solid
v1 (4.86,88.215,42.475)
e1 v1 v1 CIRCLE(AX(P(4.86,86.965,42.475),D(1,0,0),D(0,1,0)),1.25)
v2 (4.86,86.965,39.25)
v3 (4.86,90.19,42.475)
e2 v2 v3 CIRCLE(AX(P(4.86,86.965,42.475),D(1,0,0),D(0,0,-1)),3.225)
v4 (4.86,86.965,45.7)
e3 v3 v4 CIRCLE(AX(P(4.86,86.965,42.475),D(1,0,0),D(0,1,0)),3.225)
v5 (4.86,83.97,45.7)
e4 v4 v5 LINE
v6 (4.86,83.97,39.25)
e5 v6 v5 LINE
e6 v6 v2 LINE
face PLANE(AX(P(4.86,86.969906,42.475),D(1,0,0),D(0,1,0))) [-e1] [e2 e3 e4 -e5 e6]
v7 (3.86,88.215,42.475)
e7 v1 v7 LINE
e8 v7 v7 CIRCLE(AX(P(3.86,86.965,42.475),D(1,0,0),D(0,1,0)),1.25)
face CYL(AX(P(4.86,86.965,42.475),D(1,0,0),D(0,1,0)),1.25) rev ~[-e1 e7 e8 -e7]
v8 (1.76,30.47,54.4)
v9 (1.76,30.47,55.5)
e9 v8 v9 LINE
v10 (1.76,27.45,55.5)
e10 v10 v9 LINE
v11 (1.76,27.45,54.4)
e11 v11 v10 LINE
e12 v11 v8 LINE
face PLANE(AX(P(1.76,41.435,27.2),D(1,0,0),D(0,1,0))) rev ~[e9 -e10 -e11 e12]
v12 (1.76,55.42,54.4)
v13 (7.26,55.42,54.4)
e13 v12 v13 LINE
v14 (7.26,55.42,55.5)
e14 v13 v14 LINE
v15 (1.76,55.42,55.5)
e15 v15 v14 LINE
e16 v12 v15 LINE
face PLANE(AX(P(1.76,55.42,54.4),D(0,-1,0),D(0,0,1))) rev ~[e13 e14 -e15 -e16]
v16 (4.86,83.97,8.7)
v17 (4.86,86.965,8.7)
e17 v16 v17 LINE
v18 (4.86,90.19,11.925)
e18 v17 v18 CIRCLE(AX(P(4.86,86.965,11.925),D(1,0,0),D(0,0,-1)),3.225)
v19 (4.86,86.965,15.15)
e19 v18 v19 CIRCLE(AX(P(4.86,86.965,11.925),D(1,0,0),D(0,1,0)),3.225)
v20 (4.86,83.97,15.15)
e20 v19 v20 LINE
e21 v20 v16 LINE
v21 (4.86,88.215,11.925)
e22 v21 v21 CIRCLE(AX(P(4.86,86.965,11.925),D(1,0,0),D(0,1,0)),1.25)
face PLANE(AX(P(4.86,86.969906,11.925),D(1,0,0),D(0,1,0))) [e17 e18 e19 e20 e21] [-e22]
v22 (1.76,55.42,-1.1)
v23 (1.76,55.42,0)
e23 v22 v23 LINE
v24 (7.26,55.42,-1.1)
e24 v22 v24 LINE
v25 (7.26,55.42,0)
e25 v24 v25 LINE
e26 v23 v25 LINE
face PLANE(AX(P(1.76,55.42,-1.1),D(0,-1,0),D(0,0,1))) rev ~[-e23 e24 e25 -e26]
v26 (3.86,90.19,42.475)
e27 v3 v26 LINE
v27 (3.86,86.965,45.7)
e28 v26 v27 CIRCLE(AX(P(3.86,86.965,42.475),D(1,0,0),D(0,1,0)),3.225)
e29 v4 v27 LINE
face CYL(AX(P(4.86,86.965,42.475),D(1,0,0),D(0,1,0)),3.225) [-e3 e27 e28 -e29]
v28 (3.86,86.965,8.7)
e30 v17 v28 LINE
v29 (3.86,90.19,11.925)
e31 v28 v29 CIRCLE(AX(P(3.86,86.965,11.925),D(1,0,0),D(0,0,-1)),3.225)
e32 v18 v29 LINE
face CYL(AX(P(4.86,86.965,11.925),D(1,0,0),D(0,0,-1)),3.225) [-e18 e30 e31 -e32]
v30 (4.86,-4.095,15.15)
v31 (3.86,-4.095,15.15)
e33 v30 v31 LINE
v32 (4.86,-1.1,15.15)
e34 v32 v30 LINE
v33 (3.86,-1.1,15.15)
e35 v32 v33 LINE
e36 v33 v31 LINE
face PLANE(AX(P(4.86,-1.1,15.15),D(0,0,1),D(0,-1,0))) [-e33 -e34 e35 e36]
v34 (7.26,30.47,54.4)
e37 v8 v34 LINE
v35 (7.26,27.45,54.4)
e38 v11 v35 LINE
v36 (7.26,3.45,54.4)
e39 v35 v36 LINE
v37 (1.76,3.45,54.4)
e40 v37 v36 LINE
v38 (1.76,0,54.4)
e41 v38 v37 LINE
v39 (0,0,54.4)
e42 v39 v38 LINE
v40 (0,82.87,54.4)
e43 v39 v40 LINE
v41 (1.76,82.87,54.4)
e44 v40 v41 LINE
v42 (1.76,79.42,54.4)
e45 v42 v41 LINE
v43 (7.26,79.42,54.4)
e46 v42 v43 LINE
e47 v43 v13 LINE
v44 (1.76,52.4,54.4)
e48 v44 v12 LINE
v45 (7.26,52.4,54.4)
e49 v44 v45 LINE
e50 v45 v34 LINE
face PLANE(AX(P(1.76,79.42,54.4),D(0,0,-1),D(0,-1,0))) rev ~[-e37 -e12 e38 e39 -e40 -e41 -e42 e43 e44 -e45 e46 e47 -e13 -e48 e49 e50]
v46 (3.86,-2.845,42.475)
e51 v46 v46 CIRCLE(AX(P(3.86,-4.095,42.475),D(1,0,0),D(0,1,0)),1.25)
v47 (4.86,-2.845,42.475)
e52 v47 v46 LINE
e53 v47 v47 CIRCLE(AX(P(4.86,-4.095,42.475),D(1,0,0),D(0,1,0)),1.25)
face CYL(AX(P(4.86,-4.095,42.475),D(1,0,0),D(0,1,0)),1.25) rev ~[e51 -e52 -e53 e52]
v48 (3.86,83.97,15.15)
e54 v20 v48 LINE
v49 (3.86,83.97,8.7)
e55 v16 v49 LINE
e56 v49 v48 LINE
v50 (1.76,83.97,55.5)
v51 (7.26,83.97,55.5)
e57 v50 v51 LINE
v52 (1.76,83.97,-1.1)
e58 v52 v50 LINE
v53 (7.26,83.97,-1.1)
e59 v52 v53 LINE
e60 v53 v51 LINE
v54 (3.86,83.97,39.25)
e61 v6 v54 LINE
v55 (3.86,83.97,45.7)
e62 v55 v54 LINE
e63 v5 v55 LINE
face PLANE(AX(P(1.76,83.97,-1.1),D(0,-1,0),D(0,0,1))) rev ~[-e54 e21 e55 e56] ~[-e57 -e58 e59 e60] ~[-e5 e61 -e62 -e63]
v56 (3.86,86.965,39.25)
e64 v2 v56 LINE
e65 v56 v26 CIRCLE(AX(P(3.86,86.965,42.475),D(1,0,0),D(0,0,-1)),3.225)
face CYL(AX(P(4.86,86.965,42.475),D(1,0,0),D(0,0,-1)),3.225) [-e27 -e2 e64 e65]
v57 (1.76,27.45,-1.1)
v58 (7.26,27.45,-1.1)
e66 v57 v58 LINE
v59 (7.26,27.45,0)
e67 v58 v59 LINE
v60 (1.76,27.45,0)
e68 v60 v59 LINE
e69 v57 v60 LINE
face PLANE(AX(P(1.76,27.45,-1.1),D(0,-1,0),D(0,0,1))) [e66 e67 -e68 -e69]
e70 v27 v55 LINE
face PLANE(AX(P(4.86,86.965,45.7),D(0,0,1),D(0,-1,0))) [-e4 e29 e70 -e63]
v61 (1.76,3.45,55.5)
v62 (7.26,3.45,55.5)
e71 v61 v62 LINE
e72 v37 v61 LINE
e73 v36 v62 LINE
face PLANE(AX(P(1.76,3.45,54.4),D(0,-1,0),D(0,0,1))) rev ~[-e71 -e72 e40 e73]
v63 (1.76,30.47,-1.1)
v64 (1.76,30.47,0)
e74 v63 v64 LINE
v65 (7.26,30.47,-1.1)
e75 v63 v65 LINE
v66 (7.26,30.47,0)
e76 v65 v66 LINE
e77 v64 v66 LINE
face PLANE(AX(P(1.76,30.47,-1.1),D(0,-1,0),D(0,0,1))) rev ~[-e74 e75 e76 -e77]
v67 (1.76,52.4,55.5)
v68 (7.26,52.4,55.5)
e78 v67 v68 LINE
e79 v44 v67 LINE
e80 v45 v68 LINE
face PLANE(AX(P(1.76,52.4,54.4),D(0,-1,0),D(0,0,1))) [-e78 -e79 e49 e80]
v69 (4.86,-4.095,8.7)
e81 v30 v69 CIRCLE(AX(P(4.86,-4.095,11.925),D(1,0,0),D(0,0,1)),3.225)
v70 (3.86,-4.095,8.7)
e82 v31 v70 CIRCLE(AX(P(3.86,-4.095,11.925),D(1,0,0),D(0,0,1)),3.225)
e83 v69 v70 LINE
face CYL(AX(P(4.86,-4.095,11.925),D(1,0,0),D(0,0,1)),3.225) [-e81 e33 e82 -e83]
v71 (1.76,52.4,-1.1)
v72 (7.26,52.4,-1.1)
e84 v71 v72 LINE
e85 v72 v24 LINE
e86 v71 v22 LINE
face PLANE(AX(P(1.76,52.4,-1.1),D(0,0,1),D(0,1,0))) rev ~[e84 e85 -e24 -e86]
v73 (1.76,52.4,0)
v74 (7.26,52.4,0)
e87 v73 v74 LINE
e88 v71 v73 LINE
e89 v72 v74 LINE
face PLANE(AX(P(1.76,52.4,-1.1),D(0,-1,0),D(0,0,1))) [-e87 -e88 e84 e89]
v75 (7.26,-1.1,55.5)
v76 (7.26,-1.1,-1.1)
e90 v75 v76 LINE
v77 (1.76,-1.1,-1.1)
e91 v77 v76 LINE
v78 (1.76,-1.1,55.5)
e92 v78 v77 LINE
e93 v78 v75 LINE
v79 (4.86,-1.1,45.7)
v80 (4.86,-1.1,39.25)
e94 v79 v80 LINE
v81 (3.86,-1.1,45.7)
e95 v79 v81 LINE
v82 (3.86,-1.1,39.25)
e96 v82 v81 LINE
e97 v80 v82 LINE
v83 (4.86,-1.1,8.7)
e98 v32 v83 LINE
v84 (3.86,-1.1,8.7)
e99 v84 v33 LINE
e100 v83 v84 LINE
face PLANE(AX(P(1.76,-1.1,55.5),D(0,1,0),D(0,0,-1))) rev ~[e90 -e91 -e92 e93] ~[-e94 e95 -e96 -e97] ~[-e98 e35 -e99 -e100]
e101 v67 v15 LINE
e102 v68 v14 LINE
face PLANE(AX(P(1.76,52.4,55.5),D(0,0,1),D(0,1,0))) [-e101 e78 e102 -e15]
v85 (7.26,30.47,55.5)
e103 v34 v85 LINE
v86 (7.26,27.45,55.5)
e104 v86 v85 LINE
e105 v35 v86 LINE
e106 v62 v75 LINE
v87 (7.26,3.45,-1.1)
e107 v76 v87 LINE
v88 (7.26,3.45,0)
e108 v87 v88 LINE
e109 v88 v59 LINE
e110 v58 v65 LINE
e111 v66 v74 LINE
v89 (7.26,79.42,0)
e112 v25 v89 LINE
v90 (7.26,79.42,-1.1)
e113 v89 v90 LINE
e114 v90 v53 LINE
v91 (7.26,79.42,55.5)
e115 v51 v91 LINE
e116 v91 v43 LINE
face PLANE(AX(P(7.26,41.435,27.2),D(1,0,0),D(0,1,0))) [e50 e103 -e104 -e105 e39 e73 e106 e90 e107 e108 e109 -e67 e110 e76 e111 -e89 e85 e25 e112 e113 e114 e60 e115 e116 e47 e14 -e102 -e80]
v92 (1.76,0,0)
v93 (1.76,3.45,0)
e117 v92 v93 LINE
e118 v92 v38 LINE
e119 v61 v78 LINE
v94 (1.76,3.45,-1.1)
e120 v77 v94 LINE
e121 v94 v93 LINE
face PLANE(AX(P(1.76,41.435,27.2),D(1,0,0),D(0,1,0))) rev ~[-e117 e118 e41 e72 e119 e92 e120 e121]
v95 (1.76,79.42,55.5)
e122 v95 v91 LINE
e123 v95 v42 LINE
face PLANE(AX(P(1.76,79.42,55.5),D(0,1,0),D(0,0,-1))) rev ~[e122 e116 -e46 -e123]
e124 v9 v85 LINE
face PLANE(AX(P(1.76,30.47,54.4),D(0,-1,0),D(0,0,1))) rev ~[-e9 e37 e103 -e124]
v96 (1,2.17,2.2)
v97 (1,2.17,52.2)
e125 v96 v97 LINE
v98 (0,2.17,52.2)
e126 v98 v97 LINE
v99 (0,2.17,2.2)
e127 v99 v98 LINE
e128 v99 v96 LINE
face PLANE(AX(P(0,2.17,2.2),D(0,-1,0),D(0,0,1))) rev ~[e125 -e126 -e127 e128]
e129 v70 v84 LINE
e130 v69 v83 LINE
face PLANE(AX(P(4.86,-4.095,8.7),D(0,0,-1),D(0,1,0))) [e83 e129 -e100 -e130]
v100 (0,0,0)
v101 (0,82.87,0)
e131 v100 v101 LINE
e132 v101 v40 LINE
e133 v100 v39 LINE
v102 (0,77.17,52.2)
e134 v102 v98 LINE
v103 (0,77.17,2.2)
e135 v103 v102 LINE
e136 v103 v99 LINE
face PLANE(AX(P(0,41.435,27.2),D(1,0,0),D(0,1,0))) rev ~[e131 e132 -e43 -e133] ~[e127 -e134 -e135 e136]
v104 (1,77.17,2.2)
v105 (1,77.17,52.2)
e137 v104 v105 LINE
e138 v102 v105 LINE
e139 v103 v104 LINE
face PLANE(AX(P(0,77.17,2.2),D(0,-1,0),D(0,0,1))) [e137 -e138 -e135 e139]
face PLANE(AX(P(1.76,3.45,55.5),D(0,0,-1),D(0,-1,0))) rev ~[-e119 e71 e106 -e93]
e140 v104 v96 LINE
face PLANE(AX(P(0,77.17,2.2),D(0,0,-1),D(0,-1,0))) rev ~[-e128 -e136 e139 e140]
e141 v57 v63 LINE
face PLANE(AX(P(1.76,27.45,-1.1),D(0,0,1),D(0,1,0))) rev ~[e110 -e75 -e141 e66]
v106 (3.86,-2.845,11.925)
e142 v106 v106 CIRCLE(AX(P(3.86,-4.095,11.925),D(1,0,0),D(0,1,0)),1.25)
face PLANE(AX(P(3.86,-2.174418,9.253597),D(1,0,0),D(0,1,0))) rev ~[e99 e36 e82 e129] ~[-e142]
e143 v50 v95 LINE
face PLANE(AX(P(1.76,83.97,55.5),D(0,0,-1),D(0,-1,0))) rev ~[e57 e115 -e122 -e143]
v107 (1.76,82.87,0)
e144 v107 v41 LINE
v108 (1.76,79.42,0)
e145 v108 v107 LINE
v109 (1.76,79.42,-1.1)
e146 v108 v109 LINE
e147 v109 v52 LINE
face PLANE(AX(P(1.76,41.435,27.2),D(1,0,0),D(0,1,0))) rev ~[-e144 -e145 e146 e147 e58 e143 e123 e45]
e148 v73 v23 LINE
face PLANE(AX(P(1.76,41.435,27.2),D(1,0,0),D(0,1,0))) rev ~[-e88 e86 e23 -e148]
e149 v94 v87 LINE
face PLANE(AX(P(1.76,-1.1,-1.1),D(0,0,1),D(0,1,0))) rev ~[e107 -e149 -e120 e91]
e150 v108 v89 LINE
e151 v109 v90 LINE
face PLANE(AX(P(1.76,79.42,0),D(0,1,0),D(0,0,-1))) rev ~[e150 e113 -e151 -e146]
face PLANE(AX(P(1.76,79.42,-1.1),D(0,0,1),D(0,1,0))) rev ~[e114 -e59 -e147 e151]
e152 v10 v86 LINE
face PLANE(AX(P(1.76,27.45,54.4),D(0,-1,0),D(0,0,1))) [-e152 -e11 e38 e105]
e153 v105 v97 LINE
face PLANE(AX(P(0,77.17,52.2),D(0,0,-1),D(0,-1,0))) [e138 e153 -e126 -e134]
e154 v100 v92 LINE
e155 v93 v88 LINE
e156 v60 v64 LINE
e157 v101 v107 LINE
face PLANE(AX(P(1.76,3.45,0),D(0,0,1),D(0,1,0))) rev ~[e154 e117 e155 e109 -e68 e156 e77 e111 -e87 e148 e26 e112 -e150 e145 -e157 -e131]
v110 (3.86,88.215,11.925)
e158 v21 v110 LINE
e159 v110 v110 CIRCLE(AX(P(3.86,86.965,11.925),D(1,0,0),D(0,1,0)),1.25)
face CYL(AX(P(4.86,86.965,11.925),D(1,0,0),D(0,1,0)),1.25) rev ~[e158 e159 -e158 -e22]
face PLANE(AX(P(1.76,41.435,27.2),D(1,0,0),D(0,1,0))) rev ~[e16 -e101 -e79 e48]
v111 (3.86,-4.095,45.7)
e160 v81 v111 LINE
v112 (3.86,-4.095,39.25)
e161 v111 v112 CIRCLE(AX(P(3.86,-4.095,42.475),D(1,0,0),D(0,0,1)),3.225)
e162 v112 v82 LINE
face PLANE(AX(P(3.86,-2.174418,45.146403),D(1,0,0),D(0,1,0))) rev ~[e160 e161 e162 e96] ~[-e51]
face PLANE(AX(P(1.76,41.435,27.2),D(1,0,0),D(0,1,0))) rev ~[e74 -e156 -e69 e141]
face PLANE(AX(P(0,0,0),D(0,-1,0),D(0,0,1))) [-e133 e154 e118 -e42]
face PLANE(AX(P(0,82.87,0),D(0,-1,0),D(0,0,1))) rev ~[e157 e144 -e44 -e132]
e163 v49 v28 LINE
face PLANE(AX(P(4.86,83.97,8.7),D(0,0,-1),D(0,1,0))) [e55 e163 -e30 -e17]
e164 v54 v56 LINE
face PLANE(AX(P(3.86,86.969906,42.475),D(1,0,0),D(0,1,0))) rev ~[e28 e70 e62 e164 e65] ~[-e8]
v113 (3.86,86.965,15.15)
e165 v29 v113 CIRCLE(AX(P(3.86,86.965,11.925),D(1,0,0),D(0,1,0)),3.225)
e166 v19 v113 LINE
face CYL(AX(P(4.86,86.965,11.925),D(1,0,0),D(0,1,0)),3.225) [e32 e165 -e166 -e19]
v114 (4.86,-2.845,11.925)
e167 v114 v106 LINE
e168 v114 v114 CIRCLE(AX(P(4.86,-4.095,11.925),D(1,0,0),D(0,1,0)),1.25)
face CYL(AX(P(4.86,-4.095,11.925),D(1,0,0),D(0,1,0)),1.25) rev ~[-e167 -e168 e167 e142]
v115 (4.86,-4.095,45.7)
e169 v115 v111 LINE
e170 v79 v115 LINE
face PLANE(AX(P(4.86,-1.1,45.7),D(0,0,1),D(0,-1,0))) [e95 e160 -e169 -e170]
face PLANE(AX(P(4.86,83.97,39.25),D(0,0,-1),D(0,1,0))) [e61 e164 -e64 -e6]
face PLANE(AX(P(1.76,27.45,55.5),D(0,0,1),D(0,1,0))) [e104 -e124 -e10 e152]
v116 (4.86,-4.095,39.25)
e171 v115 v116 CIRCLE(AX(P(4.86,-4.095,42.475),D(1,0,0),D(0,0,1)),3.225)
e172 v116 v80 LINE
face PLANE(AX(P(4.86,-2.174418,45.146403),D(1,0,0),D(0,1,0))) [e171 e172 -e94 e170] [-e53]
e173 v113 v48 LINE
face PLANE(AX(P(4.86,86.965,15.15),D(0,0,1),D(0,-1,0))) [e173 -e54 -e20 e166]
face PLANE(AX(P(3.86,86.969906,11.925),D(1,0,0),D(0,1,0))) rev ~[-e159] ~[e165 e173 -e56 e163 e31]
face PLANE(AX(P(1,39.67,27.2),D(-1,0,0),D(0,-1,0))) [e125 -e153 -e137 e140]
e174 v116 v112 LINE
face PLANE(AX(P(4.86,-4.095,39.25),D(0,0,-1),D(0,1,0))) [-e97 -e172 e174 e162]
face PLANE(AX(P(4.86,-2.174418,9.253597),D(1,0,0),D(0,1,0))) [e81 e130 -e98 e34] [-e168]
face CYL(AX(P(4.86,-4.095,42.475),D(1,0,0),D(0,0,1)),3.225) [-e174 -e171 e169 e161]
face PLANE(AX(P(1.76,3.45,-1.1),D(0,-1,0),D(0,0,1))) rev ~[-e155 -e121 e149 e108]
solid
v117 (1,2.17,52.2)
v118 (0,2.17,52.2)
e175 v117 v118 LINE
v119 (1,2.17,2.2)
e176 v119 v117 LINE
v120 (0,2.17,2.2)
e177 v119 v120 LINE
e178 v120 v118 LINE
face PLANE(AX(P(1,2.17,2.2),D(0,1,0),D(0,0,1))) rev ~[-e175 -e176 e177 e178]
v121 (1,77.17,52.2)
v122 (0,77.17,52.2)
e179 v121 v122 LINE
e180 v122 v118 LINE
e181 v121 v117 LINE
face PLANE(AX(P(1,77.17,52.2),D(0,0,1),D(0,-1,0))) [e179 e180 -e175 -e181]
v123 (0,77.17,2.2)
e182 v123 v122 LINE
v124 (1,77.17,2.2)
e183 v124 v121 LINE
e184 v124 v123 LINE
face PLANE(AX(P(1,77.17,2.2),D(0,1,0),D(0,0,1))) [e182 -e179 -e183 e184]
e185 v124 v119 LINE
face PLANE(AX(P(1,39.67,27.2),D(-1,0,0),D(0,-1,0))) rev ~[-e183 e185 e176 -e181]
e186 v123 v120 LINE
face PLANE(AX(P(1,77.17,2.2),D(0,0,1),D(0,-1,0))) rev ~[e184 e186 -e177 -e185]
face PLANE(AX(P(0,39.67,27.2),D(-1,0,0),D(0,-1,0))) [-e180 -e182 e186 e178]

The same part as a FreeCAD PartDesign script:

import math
import FreeCAD as App
import Part
import Sketcher

V = App.Vector

doc = App.newDocument("Part")
body = doc.addObject("PartDesign::Body", "Body")

# Sketch on YZ plane
sketch1 = body.newObject("Sketcher::SketchObject", "Sketch")
sketch1.AttachmentSupport = (doc.getObject("YZ_Plane"), [""])
sketch1.MapMode = "FlatFace"
sketch1.addGeometry(Part.LineSegment(V(0, 54.4, 0), V(0, 0, 0)), False)
sketch1.addGeometry(Part.LineSegment(V(0, 0, 0), V(82.87, 0, 0)), False)
sketch1.addGeometry(Part.LineSegment(V(82.87, 0, 0), V(82.87, 54.4, 0)), False)
sketch1.addGeometry(Part.LineSegment(V(82.87, 54.4, 0), V(0, 54.4, 0)), False)
sketch1.addConstraint(Sketcher.Constraint("Coincident", 0, 2, 1, 1))
sketch1.addConstraint(Sketcher.Constraint("Coincident", 1, 2, 2, 1))
sketch1.addConstraint(Sketcher.Constraint("Coincident", 2, 2, 3, 1))
sketch1.addConstraint(Sketcher.Constraint("Coincident", 3, 2, 0, 1))
sketch1.addConstraint(Sketcher.Constraint("Vertical", 0))
sketch1.addConstraint(Sketcher.Constraint("Horizontal", 1))
sketch1.addConstraint(Sketcher.Constraint("Vertical", 2))
sketch1.addConstraint(Sketcher.Constraint("Horizontal", 3))
sketch1.addConstraint(Sketcher.Constraint("Coincident", 0, 2, -1, 1))
sketch1.addConstraint(Sketcher.Constraint("DistanceY", 0, 2, 0, 1, 54.4))
sketch1.addConstraint(Sketcher.Constraint("DistanceX", 1, 1, 1, 2, 82.87))
pad1 = body.newObject("PartDesign::Pad", "Pad")
pad1.Profile = sketch1
pad1.Length = 1.76

# Sketch on YZ plane
sketch2 = body.newObject("Sketcher::SketchObject", "Sketch001")
sketch2.AttachmentSupport = (doc.getObject("YZ_Plane"), [""])
sketch2.MapMode = "FlatFace"
sketch2.AttachmentOffset = App.Placement(V(0, 0, 1.76), App.Rotation())
sketch2.addGeometry(Part.LineSegment(V(3.45, 0, 0), V(27.45, 0, 0)), False)
sketch2.addGeometry(Part.LineSegment(V(27.45, 0, 0), V(27.45, -1.1, 0)), False)
sketch2.addGeometry(Part.LineSegment(V(27.45, -1.1, 0), V(30.47, -1.1, 0)), False)
sketch2.addGeometry(Part.LineSegment(V(30.47, -1.1, 0), V(30.47, 0, 0)), False)
sketch2.addGeometry(Part.LineSegment(V(30.47, 0, 0), V(52.4, 0, 0)), False)
sketch2.addGeometry(Part.LineSegment(V(52.4, 0, 0), V(52.4, -1.1, 0)), False)
sketch2.addGeometry(Part.LineSegment(V(52.4, -1.1, 0), V(55.42, -1.1, 0)), False)
sketch2.addGeometry(Part.LineSegment(V(55.42, -1.1, 0), V(55.42, 0, 0)), False)
sketch2.addGeometry(Part.LineSegment(V(55.42, 0, 0), V(79.42, 0, 0)), False)
sketch2.addGeometry(Part.LineSegment(V(79.42, 0, 0), V(79.42, -1.1, 0)), False)
sketch2.addGeometry(Part.LineSegment(V(79.42, -1.1, 0), V(83.97, -1.1, 0)), False)
sketch2.addGeometry(Part.LineSegment(V(83.97, -1.1, 0), V(83.97, 55.5, 0)), False)
sketch2.addGeometry(Part.LineSegment(V(83.97, 55.5, 0), V(79.42, 55.5, 0)), False)
sketch2.addGeometry(Part.LineSegment(V(79.42, 55.5, 0), V(79.42, 54.4, 0)), False)
sketch2.addGeometry(Part.LineSegment(V(79.42, 54.4, 0), V(55.42, 54.4, 0)), False)
sketch2.addGeometry(Part.LineSegment(V(55.42, 54.4, 0), V(55.42, 55.5, 0)), False)
sketch2.addGeometry(Part.LineSegment(V(55.42, 55.5, 0), V(52.4, 55.5, 0)), False)
sketch2.addGeometry(Part.LineSegment(V(52.4, 55.5, 0), V(52.4, 54.4, 0)), False)
sketch2.addGeometry(Part.LineSegment(V(52.4, 54.4, 0), V(30.47, 54.4, 0)), False)
sketch2.addGeometry(Part.LineSegment(V(30.47, 54.4, 0), V(30.47, 55.5, 0)), False)
sketch2.addGeometry(Part.LineSegment(V(30.47, 55.5, 0), V(27.45, 55.5, 0)), False)
sketch2.addGeometry(Part.LineSegment(V(27.45, 55.5, 0), V(27.45, 54.4, 0)), False)
sketch2.addGeometry(Part.LineSegment(V(27.45, 54.4, 0), V(3.45, 54.4, 0)), False)
sketch2.addGeometry(Part.LineSegment(V(3.45, 54.4, 0), V(3.45, 55.5, 0)), False)
sketch2.addGeometry(Part.LineSegment(V(3.45, 55.5, 0), V(-1.1, 55.5, 0)), False)
sketch2.addGeometry(Part.LineSegment(V(-1.1, 55.5, 0), V(-1.1, -1.1, 0)), False)
sketch2.addGeometry(Part.LineSegment(V(-1.1, -1.1, 0), V(3.45, -1.1, 0)), False)
sketch2.addGeometry(Part.LineSegment(V(3.45, -1.1, 0), V(3.45, 0, 0)), False)
sketch2.addConstraint(Sketcher.Constraint("Coincident", 0, 2, 1, 1))
sketch2.addConstraint(Sketcher.Constraint("Coincident", 1, 2, 2, 1))
sketch2.addConstraint(Sketcher.Constraint("Coincident", 2, 2, 3, 1))
sketch2.addConstraint(Sketcher.Constraint("Coincident", 3, 2, 4, 1))
sketch2.addConstraint(Sketcher.Constraint("Coincident", 4, 2, 5, 1))
sketch2.addConstraint(Sketcher.Constraint("Coincident", 5, 2, 6, 1))
sketch2.addConstraint(Sketcher.Constraint("Coincident", 6, 2, 7, 1))
sketch2.addConstraint(Sketcher.Constraint("Coincident", 7, 2, 8, 1))
sketch2.addConstraint(Sketcher.Constraint("Coincident", 8, 2, 9, 1))
sketch2.addConstraint(Sketcher.Constraint("Coincident", 9, 2, 10, 1))
sketch2.addConstraint(Sketcher.Constraint("Coincident", 10, 2, 11, 1))
sketch2.addConstraint(Sketcher.Constraint("Coincident", 11, 2, 12, 1))
sketch2.addConstraint(Sketcher.Constraint("Coincident", 12, 2, 13, 1))
sketch2.addConstraint(Sketcher.Constraint("Coincident", 13, 2, 14, 1))
sketch2.addConstraint(Sketcher.Constraint("Coincident", 14, 2, 15, 1))
sketch2.addConstraint(Sketcher.Constraint("Coincident", 15, 2, 16, 1))
sketch2.addConstraint(Sketcher.Constraint("Coincident", 16, 2, 17, 1))
sketch2.addConstraint(Sketcher.Constraint("Coincident", 17, 2, 18, 1))
sketch2.addConstraint(Sketcher.Constraint("Coincident", 18, 2, 19, 1))
sketch2.addConstraint(Sketcher.Constraint("Coincident", 19, 2, 20, 1))
sketch2.addConstraint(Sketcher.Constraint("Coincident", 20, 2, 21, 1))
sketch2.addConstraint(Sketcher.Constraint("Coincident", 21, 2, 22, 1))
sketch2.addConstraint(Sketcher.Constraint("Coincident", 22, 2, 23, 1))
sketch2.addConstraint(Sketcher.Constraint("Coincident", 23, 2, 24, 1))
sketch2.addConstraint(Sketcher.Constraint("Coincident", 24, 2, 25, 1))
sketch2.addConstraint(Sketcher.Constraint("Coincident", 25, 2, 26, 1))
sketch2.addConstraint(Sketcher.Constraint("Coincident", 26, 2, 27, 1))
sketch2.addConstraint(Sketcher.Constraint("Coincident", 27, 2, 0, 1))
sketch2.addConstraint(Sketcher.Constraint("Horizontal", 0))
sketch2.addConstraint(Sketcher.Constraint("Vertical", 1))
sketch2.addConstraint(Sketcher.Constraint("Horizontal", 2))
sketch2.addConstraint(Sketcher.Constraint("Vertical", 3))
sketch2.addConstraint(Sketcher.Constraint("Horizontal", 4))
sketch2.addConstraint(Sketcher.Constraint("Vertical", 5))
sketch2.addConstraint(Sketcher.Constraint("Horizontal", 6))
sketch2.addConstraint(Sketcher.Constraint("Vertical", 7))
sketch2.addConstraint(Sketcher.Constraint("Horizontal", 8))
sketch2.addConstraint(Sketcher.Constraint("Vertical", 9))
sketch2.addConstraint(Sketcher.Constraint("Horizontal", 10))
sketch2.addConstraint(Sketcher.Constraint("Vertical", 11))
sketch2.addConstraint(Sketcher.Constraint("Horizontal", 12))
sketch2.addConstraint(Sketcher.Constraint("Vertical", 13))
sketch2.addConstraint(Sketcher.Constraint("Horizontal", 14))
sketch2.addConstraint(Sketcher.Constraint("Vertical", 15))
sketch2.addConstraint(Sketcher.Constraint("Horizontal", 16))
sketch2.addConstraint(Sketcher.Constraint("Vertical", 17))
sketch2.addConstraint(Sketcher.Constraint("Horizontal", 18))
sketch2.addConstraint(Sketcher.Constraint("Vertical", 19))
sketch2.addConstraint(Sketcher.Constraint("Horizontal", 20))
sketch2.addConstraint(Sketcher.Constraint("Vertical", 21))
sketch2.addConstraint(Sketcher.Constraint("Horizontal", 22))
sketch2.addConstraint(Sketcher.Constraint("Vertical", 23))
sketch2.addConstraint(Sketcher.Constraint("Horizontal", 24))
sketch2.addConstraint(Sketcher.Constraint("Vertical", 25))
sketch2.addConstraint(Sketcher.Constraint("Horizontal", 26))
sketch2.addConstraint(Sketcher.Constraint("Vertical", 27))
sketch2.addConstraint(Sketcher.Constraint("PointOnObject", 0, 2, -1))
sketch2.addConstraint(Sketcher.Constraint("PointOnObject", 3, 2, -1))
sketch2.addConstraint(Sketcher.Constraint("PointOnObject", 7, 2, -1))
sketch2.addConstraint(Sketcher.Constraint("Horizontal", 2, 2, 5, 2))
sketch2.addConstraint(Sketcher.Constraint("Horizontal", 6, 2, 9, 2))
sketch2.addConstraint(Sketcher.Constraint("Horizontal", 12, 2, 15, 2))
sketch2.addConstraint(Sketcher.Constraint("Horizontal", 14, 2, 17, 2))
sketch2.addConstraint(Sketcher.Constraint("Horizontal", 16, 2, 19, 2))
sketch2.addConstraint(Sketcher.Constraint("Horizontal", 18, 2, 21, 2))
sketch2.addConstraint(Sketcher.Constraint("Horizontal", 20, 2, 23, 2))
sketch2.addConstraint(Sketcher.Constraint("Horizontal", 10, 2, 25, 2))
sketch2.addConstraint(Sketcher.Constraint("Vertical", 9, 2, 12, 2))
sketch2.addConstraint(Sketcher.Constraint("Vertical", 7, 2, 14, 2))
sketch2.addConstraint(Sketcher.Constraint("Vertical", 5, 2, 16, 2))
sketch2.addConstraint(Sketcher.Constraint("Vertical", 3, 2, 18, 2))
sketch2.addConstraint(Sketcher.Constraint("Vertical", 1, 2, 20, 2))
sketch2.addConstraint(Sketcher.Constraint("Vertical", 23, 2, 26, 2))
sketch2.addConstraint(Sketcher.Constraint("Equal", 2, 6))
sketch2.addConstraint(Sketcher.Constraint("Equal", 0, 8))
sketch2.addConstraint(Sketcher.Constraint("Equal", 12, 24))
sketch2.addConstraint(Sketcher.Constraint("Equal", 9, 13))
sketch2.addConstraint(Sketcher.Constraint("DistanceX", 0, 1, 0, 2, 24.0))
sketch2.addConstraint(Sketcher.Constraint("DistanceY", 1, 2, 1, 1, 1.1))
sketch2.addConstraint(Sketcher.Constraint("DistanceY", 11, 1, 11, 2, 56.6))
sketch2.addConstraint(Sketcher.Constraint("DistanceX", 2, 1, 2, 2, 3.02))
sketch2.addConstraint(Sketcher.Constraint("DistanceX", 4, 1, 4, 2, 21.93))
sketch2.addConstraint(Sketcher.Constraint("DistanceX", 10, 1, 10, 2, 4.55))
sketch2.addConstraint(Sketcher.Constraint("DistanceX", -1, 1, 4, 2, 52.4))
pad2 = body.newObject("PartDesign::Pad", "Pad001")
pad2.Profile = sketch2
pad2.Length = 5.5

# Sketch on YZ plane
sketch3 = body.newObject("Sketcher::SketchObject", "Sketch002")
sketch3.AttachmentSupport = (doc.getObject("YZ_Plane"), [""])
sketch3.MapMode = "FlatFace"
sketch3.AttachmentOffset = App.Placement(V(0, 0, 4.86), App.Rotation())
sketch3.addGeometry(Part.ArcOfCircle(Part.Circle(V(86.965, 11.925, 0), V(0, 0, 1), 3.225), math.radians(-90), math.radians(0)), False)
sketch3.addGeometry(Part.ArcOfCircle(Part.Circle(V(86.965, 11.925, 0), V(0, 0, 1), 3.225), math.radians(0), math.radians(90)), False)
sketch3.addGeometry(Part.LineSegment(V(86.965, 15.15, 0), V(83.97, 15.15, 0)), False)
sketch3.addGeometry(Part.LineSegment(V(83.97, 15.15, 0), V(83.97, 13.121077, 0)), False)
sketch3.addGeometry(Part.ArcOfCircle(Part.Circle(V(86.965, 11.925, 0), V(0, 0, 1), 3.225), math.radians(158.230313), math.radians(201.769687)), False)
sketch3.addGeometry(Part.LineSegment(V(83.97, 10.728923, 0), V(83.97, 8.7, 0)), False)
sketch3.addGeometry(Part.LineSegment(V(83.97, 8.7, 0), V(86.965, 8.7, 0)), False)
sketch3.addGeometry(Part.Circle(V(86.965, 11.925, 0), V(0, 0, 1), 1.25), False)
sketch3.addGeometry(Part.ArcOfCircle(Part.Circle(V(86.965, 42.475, 0), V(0, 0, 1), 3.225), math.radians(-90), math.radians(0)), False)
sketch3.addGeometry(Part.ArcOfCircle(Part.Circle(V(86.965, 42.475, 0), V(0, 0, 1), 3.225), math.radians(0), math.radians(90)), False)
sketch3.addGeometry(Part.LineSegment(V(86.965, 45.7, 0), V(83.97, 45.7, 0)), False)
sketch3.addGeometry(Part.LineSegment(V(83.97, 45.7, 0), V(83.97, 43.671077, 0)), False)
sketch3.addGeometry(Part.ArcOfCircle(Part.Circle(V(86.965, 42.475, 0), V(0, 0, 1), 3.225), math.radians(158.230313), math.radians(201.769687)), False)
sketch3.addGeometry(Part.LineSegment(V(83.97, 41.278923, 0), V(83.97, 39.25, 0)), False)
sketch3.addGeometry(Part.LineSegment(V(83.97, 39.25, 0), V(86.965, 39.25, 0)), False)
sketch3.addGeometry(Part.Circle(V(86.965, 42.475, 0), V(0, 0, 1), 1.25), False)
sketch3.addGeometry(Part.LineSegment(V(-1.1, 45.7, 0), V(-4.095, 45.7, 0)), False)
sketch3.addGeometry(Part.ArcOfCircle(Part.Circle(V(-4.095, 42.475, 0), V(0, 0, 1), 3.225), math.radians(90), math.radians(270)), False)
sketch3.addGeometry(Part.LineSegment(V(-4.095, 39.25, 0), V(-1.1, 39.25, 0)), False)
sketch3.addGeometry(Part.LineSegment(V(-1.1, 39.25, 0), V(-1.1, 41.278923, 0)), False)
sketch3.addGeometry(Part.ArcOfCircle(Part.Circle(V(-4.095, 42.475, 0), V(0, 0, 1), 3.225), math.radians(-21.769687), math.radians(0)), False)
sketch3.addGeometry(Part.ArcOfCircle(Part.Circle(V(-4.095, 42.475, 0), V(0, 0, 1), 3.225), math.radians(0), math.radians(21.769687)), False)
sketch3.addGeometry(Part.LineSegment(V(-1.1, 43.671077, 0), V(-1.1, 45.7, 0)), False)
sketch3.addGeometry(Part.Circle(V(-4.095, 42.475, 0), V(0, 0, 1), 1.25), False)
sketch3.addGeometry(Part.LineSegment(V(-4.095, 8.7, 0), V(-1.1, 8.7, 0)), False)
sketch3.addGeometry(Part.LineSegment(V(-1.1, 8.7, 0), V(-1.1, 10.728923, 0)), False)
sketch3.addGeometry(Part.ArcOfCircle(Part.Circle(V(-4.095, 11.925, 0), V(0, 0, 1), 3.225), math.radians(-21.769687), math.radians(0)), False)
sketch3.addGeometry(Part.ArcOfCircle(Part.Circle(V(-4.095, 11.925, 0), V(0, 0, 1), 3.225), math.radians(0), math.radians(21.769687)), False)
sketch3.addGeometry(Part.LineSegment(V(-1.1, 13.121077, 0), V(-1.1, 15.15, 0)), False)
sketch3.addGeometry(Part.LineSegment(V(-1.1, 15.15, 0), V(-4.095, 15.15, 0)), False)
sketch3.addGeometry(Part.ArcOfCircle(Part.Circle(V(-4.095, 11.925, 0), V(0, 0, 1), 3.225), math.radians(90), math.radians(270)), False)
sketch3.addGeometry(Part.Circle(V(-4.095, 11.925, 0), V(0, 0, 1), 1.25), False)
sketch3.addConstraint(Sketcher.Constraint("Tangent", 0, 2, 1, 1))
sketch3.addConstraint(Sketcher.Constraint("Tangent", 1, 2, 2, 1))
sketch3.addConstraint(Sketcher.Constraint("Coincident", 2, 2, 3, 1))
sketch3.addConstraint(Sketcher.Constraint("Coincident", 3, 2, 4, 1))
sketch3.addConstraint(Sketcher.Constraint("Coincident", 4, 2, 5, 1))
sketch3.addConstraint(Sketcher.Constraint("Coincident", 5, 2, 6, 1))
sketch3.addConstraint(Sketcher.Constraint("Tangent", 6, 2, 0, 1))
sketch3.addConstraint(Sketcher.Constraint("Tangent", 8, 2, 9, 1))
sketch3.addConstraint(Sketcher.Constraint("Tangent", 9, 2, 10, 1))
sketch3.addConstraint(Sketcher.Constraint("Coincident", 10, 2, 11, 1))
sketch3.addConstraint(Sketcher.Constraint("Coincident", 11, 2, 12, 1))
sketch3.addConstraint(Sketcher.Constraint("Coincident", 12, 2, 13, 1))
sketch3.addConstraint(Sketcher.Constraint("Coincident", 13, 2, 14, 1))
sketch3.addConstraint(Sketcher.Constraint("Tangent", 14, 2, 8, 1))
sketch3.addConstraint(Sketcher.Constraint("Tangent", 16, 2, 17, 1))
sketch3.addConstraint(Sketcher.Constraint("Tangent", 17, 2, 18, 1))
sketch3.addConstraint(Sketcher.Constraint("Coincident", 18, 2, 19, 1))
sketch3.addConstraint(Sketcher.Constraint("Coincident", 19, 2, 20, 1))
sketch3.addConstraint(Sketcher.Constraint("Tangent", 20, 2, 21, 1))
sketch3.addConstraint(Sketcher.Constraint("Coincident", 21, 2, 22, 1))
sketch3.addConstraint(Sketcher.Constraint("Coincident", 22, 2, 16, 1))
sketch3.addConstraint(Sketcher.Constraint("Coincident", 24, 2, 25, 1))
sketch3.addConstraint(Sketcher.Constraint("Coincident", 25, 2, 26, 1))
sketch3.addConstraint(Sketcher.Constraint("Tangent", 26, 2, 27, 1))
sketch3.addConstraint(Sketcher.Constraint("Coincident", 27, 2, 28, 1))
sketch3.addConstraint(Sketcher.Constraint("Coincident", 28, 2, 29, 1))
sketch3.addConstraint(Sketcher.Constraint("Tangent", 29, 2, 30, 1))
sketch3.addConstraint(Sketcher.Constraint("Tangent", 30, 2, 24, 1))
sketch3.addConstraint(Sketcher.Constraint("Horizontal", 2))
sketch3.addConstraint(Sketcher.Constraint("Vertical", 3))
sketch3.addConstraint(Sketcher.Constraint("Vertical", 5))
sketch3.addConstraint(Sketcher.Constraint("Horizontal", 6))
sketch3.addConstraint(Sketcher.Constraint("Horizontal", 10))
sketch3.addConstraint(Sketcher.Constraint("Vertical", 11))
sketch3.addConstraint(Sketcher.Constraint("Vertical", 13))
sketch3.addConstraint(Sketcher.Constraint("Horizontal", 14))
sketch3.addConstraint(Sketcher.Constraint("Horizontal", 16))
sketch3.addConstraint(Sketcher.Constraint("Horizontal", 18))
sketch3.addConstraint(Sketcher.Constraint("Vertical", 19))
sketch3.addConstraint(Sketcher.Constraint("Vertical", 22))
sketch3.addConstraint(Sketcher.Constraint("Horizontal", 24))
sketch3.addConstraint(Sketcher.Constraint("Vertical", 25))
sketch3.addConstraint(Sketcher.Constraint("Vertical", 28))
sketch3.addConstraint(Sketcher.Constraint("Horizontal", 29))
sketch3.addConstraint(Sketcher.Constraint("Coincident", 4, 3, 0, 3))
sketch3.addConstraint(Sketcher.Constraint("Coincident", 7, 3, 0, 3))
sketch3.addConstraint(Sketcher.Constraint("Coincident", 12, 3, 8, 3))
sketch3.addConstraint(Sketcher.Constraint("Coincident", 15, 3, 8, 3))
sketch3.addConstraint(Sketcher.Constraint("Coincident", 20, 3, 17, 3))
sketch3.addConstraint(Sketcher.Constraint("Coincident", 23, 3, 17, 3))
sketch3.addConstraint(Sketcher.Constraint("Coincident", 30, 3, 26, 3))
sketch3.addConstraint(Sketcher.Constraint("Coincident", 31, 3, 26, 3))
sketch3.addConstraint(Sketcher.Constraint("Equal", 0, 1))
sketch3.addConstraint(Sketcher.Constraint("Equal", 1, 4))
sketch3.addConstraint(Sketcher.Constraint("Equal", 4, 8))
sketch3.addConstraint(Sketcher.Constraint("Equal", 8, 9))
sketch3.addConstraint(Sketcher.Constraint("Equal", 9, 12))
sketch3.addConstraint(Sketcher.Constraint("Equal", 7, 15))
sketch3.addConstraint(Sketcher.Constraint("Equal", 12, 17))
sketch3.addConstraint(Sketcher.Constraint("Equal", 17, 20))
sketch3.addConstraint(Sketcher.Constraint("Equal", 20, 21))
sketch3.addConstraint(Sketcher.Constraint("Equal", 15, 23))
sketch3.addConstraint(Sketcher.Constraint("Equal", 21, 26))
sketch3.addConstraint(Sketcher.Constraint("Equal", 26, 27))
sketch3.addConstraint(Sketcher.Constraint("Equal", 27, 30))
sketch3.addConstraint(Sketcher.Constraint("Equal", 23, 31))
sketch3.addConstraint(Sketcher.Constraint("Horizontal", 15, 3, 17, 3))
sketch3.addConstraint(Sketcher.Constraint("Horizontal", 7, 3, 26, 3))
sketch3.addConstraint(Sketcher.Constraint("Horizontal", 31, 3, 0, 2))
sketch3.addConstraint(Sketcher.Constraint("Horizontal", 23, 3, 8, 2))
sketch3.addConstraint(Sketcher.Constraint("Horizontal", 12, 2, 19, 2))
sketch3.addConstraint(Sketcher.Constraint("Horizontal", 8, 2, 20, 2))
sketch3.addConstraint(Sketcher.Constraint("Horizontal", 11, 2, 21, 2))
sketch3.addConstraint(Sketcher.Constraint("Horizontal", 4, 2, 25, 2))
sketch3.addConstraint(Sketcher.Constraint("Horizontal", 0, 2, 26, 2))
sketch3.addConstraint(Sketcher.Constraint("Horizontal", 3, 2, 27, 2))
sketch3.addConstraint(Sketcher.Constraint("Vertical", 7, 3, 8, 3))
sketch3.addConstraint(Sketcher.Constraint("Vertical", 23, 3, 26, 3))
sketch3.addConstraint(Sketcher.Constraint("Vertical", 3, 2, 4, 2))
sketch3.addConstraint(Sketcher.Constraint("Vertical", 5, 2, 10, 2))
sketch3.addConstraint(Sketcher.Constraint("Vertical", 11, 2, 12, 2))
sketch3.addConstraint(Sketcher.Constraint("Diameter", 7, 2.5))
sketch3.addConstraint(Sketcher.Constraint("Radius", 0, 3.225))
sketch3.addConstraint(Sketcher.Constraint("DistanceY", -1, 1, 5, 2, 8.7))
sketch3.addConstraint(Sketcher.Constraint("DistanceY", -1, 1, 9, 2, 45.7))
sketch3.addConstraint(Sketcher.Constraint("DistanceX", 18, 2, -1, 1, 1.1))
sketch3.addConstraint(Sketcher.Constraint("DistanceX", 2, 2, 2, 1, 2.995))
sketch3.addConstraint(Sketcher.Constraint("DistanceX", -1, 1, 0, 2, 90.19))
pad3 = body.newObject("PartDesign::Pad", "Pad002")
pad3.Profile = sketch3
pad3.Length = 1
pad3.Reversed = True

# Sketch on YZ plane
sketch4 = body.newObject("Sketcher::SketchObject", "Sketch003")
sketch4.AttachmentSupport = (doc.getObject("YZ_Plane"), [""])
sketch4.MapMode = "FlatFace"
sketch4.addGeometry(Part.LineSegment(V(77.17, 52.2, 0), V(77.17, 2.2, 0)), False)
sketch4.addGeometry(Part.LineSegment(V(77.17, 2.2, 0), V(2.17, 2.2, 0)), False)
sketch4.addGeometry(Part.LineSegment(V(2.17, 2.2, 0), V(2.17, 52.2, 0)), False)
sketch4.addGeometry(Part.LineSegment(V(2.17, 52.2, 0), V(77.17, 52.2, 0)), False)
sketch4.addConstraint(Sketcher.Constraint("Coincident", 0, 2, 1, 1))
sketch4.addConstraint(Sketcher.Constraint("Coincident", 1, 2, 2, 1))
sketch4.addConstraint(Sketcher.Constraint("Coincident", 2, 2, 3, 1))
sketch4.addConstraint(Sketcher.Constraint("Coincident", 3, 2, 0, 1))
sketch4.addConstraint(Sketcher.Constraint("Vertical", 0))
sketch4.addConstraint(Sketcher.Constraint("Horizontal", 1))
sketch4.addConstraint(Sketcher.Constraint("Vertical", 2))
sketch4.addConstraint(Sketcher.Constraint("Horizontal", 3))
sketch4.addConstraint(Sketcher.Constraint("DistanceX", 1, 2, 1, 1, 75.0))
sketch4.addConstraint(Sketcher.Constraint("DistanceY", 0, 2, 0, 1, 50.0))
sketch4.addConstraint(Sketcher.Constraint("DistanceY", -1, 1, 0, 2, 2.2))
sketch4.addConstraint(Sketcher.Constraint("DistanceX", -1, 1, 0, 2, 77.17))
pocket1 = body.newObject("PartDesign::Pocket", "Pocket")
pocket1.Profile = sketch4
pocket1.Length = 1
pocket1.Reversed = True
body2 = doc.addObject("PartDesign::Body", "Body001")

# Sketch on YZ plane
sketch5 = body2.newObject("Sketcher::SketchObject", "Sketch004")
sketch5.AttachmentSupport = (doc.getObject("YZ_Plane001"), [""])
sketch5.MapMode = "FlatFace"
sketch5.AttachmentOffset = App.Placement(V(0, 0, 1), App.Rotation())
sketch5.addGeometry(Part.LineSegment(V(77.17, 52.2, 0), V(77.17, 2.2, 0)), False)
sketch5.addGeometry(Part.LineSegment(V(77.17, 2.2, 0), V(2.17, 2.2, 0)), False)
sketch5.addGeometry(Part.LineSegment(V(2.17, 2.2, 0), V(2.17, 52.2, 0)), False)
sketch5.addGeometry(Part.LineSegment(V(2.17, 52.2, 0), V(77.17, 52.2, 0)), False)
sketch5.addConstraint(Sketcher.Constraint("Coincident", 0, 2, 1, 1))
sketch5.addConstraint(Sketcher.Constraint("Coincident", 1, 2, 2, 1))
sketch5.addConstraint(Sketcher.Constraint("Coincident", 2, 2, 3, 1))
sketch5.addConstraint(Sketcher.Constraint("Coincident", 3, 2, 0, 1))
sketch5.addConstraint(Sketcher.Constraint("Vertical", 0))
sketch5.addConstraint(Sketcher.Constraint("Horizontal", 1))
sketch5.addConstraint(Sketcher.Constraint("Vertical", 2))
sketch5.addConstraint(Sketcher.Constraint("Horizontal", 3))
sketch5.addConstraint(Sketcher.Constraint("DistanceX", 1, 2, 1, 1, 75.0))
sketch5.addConstraint(Sketcher.Constraint("DistanceY", 0, 2, 0, 1, 50.0))
sketch5.addConstraint(Sketcher.Constraint("DistanceY", -1, 1, 0, 2, 2.2))
sketch5.addConstraint(Sketcher.Constraint("DistanceX", -1, 1, 0, 2, 77.17))
pad4 = body2.newObject("PartDesign::Pad", "Pad003")
pad4.Profile = sketch5
pad4.Length = 1
pad4.Reversed = True

doc.recompute()
